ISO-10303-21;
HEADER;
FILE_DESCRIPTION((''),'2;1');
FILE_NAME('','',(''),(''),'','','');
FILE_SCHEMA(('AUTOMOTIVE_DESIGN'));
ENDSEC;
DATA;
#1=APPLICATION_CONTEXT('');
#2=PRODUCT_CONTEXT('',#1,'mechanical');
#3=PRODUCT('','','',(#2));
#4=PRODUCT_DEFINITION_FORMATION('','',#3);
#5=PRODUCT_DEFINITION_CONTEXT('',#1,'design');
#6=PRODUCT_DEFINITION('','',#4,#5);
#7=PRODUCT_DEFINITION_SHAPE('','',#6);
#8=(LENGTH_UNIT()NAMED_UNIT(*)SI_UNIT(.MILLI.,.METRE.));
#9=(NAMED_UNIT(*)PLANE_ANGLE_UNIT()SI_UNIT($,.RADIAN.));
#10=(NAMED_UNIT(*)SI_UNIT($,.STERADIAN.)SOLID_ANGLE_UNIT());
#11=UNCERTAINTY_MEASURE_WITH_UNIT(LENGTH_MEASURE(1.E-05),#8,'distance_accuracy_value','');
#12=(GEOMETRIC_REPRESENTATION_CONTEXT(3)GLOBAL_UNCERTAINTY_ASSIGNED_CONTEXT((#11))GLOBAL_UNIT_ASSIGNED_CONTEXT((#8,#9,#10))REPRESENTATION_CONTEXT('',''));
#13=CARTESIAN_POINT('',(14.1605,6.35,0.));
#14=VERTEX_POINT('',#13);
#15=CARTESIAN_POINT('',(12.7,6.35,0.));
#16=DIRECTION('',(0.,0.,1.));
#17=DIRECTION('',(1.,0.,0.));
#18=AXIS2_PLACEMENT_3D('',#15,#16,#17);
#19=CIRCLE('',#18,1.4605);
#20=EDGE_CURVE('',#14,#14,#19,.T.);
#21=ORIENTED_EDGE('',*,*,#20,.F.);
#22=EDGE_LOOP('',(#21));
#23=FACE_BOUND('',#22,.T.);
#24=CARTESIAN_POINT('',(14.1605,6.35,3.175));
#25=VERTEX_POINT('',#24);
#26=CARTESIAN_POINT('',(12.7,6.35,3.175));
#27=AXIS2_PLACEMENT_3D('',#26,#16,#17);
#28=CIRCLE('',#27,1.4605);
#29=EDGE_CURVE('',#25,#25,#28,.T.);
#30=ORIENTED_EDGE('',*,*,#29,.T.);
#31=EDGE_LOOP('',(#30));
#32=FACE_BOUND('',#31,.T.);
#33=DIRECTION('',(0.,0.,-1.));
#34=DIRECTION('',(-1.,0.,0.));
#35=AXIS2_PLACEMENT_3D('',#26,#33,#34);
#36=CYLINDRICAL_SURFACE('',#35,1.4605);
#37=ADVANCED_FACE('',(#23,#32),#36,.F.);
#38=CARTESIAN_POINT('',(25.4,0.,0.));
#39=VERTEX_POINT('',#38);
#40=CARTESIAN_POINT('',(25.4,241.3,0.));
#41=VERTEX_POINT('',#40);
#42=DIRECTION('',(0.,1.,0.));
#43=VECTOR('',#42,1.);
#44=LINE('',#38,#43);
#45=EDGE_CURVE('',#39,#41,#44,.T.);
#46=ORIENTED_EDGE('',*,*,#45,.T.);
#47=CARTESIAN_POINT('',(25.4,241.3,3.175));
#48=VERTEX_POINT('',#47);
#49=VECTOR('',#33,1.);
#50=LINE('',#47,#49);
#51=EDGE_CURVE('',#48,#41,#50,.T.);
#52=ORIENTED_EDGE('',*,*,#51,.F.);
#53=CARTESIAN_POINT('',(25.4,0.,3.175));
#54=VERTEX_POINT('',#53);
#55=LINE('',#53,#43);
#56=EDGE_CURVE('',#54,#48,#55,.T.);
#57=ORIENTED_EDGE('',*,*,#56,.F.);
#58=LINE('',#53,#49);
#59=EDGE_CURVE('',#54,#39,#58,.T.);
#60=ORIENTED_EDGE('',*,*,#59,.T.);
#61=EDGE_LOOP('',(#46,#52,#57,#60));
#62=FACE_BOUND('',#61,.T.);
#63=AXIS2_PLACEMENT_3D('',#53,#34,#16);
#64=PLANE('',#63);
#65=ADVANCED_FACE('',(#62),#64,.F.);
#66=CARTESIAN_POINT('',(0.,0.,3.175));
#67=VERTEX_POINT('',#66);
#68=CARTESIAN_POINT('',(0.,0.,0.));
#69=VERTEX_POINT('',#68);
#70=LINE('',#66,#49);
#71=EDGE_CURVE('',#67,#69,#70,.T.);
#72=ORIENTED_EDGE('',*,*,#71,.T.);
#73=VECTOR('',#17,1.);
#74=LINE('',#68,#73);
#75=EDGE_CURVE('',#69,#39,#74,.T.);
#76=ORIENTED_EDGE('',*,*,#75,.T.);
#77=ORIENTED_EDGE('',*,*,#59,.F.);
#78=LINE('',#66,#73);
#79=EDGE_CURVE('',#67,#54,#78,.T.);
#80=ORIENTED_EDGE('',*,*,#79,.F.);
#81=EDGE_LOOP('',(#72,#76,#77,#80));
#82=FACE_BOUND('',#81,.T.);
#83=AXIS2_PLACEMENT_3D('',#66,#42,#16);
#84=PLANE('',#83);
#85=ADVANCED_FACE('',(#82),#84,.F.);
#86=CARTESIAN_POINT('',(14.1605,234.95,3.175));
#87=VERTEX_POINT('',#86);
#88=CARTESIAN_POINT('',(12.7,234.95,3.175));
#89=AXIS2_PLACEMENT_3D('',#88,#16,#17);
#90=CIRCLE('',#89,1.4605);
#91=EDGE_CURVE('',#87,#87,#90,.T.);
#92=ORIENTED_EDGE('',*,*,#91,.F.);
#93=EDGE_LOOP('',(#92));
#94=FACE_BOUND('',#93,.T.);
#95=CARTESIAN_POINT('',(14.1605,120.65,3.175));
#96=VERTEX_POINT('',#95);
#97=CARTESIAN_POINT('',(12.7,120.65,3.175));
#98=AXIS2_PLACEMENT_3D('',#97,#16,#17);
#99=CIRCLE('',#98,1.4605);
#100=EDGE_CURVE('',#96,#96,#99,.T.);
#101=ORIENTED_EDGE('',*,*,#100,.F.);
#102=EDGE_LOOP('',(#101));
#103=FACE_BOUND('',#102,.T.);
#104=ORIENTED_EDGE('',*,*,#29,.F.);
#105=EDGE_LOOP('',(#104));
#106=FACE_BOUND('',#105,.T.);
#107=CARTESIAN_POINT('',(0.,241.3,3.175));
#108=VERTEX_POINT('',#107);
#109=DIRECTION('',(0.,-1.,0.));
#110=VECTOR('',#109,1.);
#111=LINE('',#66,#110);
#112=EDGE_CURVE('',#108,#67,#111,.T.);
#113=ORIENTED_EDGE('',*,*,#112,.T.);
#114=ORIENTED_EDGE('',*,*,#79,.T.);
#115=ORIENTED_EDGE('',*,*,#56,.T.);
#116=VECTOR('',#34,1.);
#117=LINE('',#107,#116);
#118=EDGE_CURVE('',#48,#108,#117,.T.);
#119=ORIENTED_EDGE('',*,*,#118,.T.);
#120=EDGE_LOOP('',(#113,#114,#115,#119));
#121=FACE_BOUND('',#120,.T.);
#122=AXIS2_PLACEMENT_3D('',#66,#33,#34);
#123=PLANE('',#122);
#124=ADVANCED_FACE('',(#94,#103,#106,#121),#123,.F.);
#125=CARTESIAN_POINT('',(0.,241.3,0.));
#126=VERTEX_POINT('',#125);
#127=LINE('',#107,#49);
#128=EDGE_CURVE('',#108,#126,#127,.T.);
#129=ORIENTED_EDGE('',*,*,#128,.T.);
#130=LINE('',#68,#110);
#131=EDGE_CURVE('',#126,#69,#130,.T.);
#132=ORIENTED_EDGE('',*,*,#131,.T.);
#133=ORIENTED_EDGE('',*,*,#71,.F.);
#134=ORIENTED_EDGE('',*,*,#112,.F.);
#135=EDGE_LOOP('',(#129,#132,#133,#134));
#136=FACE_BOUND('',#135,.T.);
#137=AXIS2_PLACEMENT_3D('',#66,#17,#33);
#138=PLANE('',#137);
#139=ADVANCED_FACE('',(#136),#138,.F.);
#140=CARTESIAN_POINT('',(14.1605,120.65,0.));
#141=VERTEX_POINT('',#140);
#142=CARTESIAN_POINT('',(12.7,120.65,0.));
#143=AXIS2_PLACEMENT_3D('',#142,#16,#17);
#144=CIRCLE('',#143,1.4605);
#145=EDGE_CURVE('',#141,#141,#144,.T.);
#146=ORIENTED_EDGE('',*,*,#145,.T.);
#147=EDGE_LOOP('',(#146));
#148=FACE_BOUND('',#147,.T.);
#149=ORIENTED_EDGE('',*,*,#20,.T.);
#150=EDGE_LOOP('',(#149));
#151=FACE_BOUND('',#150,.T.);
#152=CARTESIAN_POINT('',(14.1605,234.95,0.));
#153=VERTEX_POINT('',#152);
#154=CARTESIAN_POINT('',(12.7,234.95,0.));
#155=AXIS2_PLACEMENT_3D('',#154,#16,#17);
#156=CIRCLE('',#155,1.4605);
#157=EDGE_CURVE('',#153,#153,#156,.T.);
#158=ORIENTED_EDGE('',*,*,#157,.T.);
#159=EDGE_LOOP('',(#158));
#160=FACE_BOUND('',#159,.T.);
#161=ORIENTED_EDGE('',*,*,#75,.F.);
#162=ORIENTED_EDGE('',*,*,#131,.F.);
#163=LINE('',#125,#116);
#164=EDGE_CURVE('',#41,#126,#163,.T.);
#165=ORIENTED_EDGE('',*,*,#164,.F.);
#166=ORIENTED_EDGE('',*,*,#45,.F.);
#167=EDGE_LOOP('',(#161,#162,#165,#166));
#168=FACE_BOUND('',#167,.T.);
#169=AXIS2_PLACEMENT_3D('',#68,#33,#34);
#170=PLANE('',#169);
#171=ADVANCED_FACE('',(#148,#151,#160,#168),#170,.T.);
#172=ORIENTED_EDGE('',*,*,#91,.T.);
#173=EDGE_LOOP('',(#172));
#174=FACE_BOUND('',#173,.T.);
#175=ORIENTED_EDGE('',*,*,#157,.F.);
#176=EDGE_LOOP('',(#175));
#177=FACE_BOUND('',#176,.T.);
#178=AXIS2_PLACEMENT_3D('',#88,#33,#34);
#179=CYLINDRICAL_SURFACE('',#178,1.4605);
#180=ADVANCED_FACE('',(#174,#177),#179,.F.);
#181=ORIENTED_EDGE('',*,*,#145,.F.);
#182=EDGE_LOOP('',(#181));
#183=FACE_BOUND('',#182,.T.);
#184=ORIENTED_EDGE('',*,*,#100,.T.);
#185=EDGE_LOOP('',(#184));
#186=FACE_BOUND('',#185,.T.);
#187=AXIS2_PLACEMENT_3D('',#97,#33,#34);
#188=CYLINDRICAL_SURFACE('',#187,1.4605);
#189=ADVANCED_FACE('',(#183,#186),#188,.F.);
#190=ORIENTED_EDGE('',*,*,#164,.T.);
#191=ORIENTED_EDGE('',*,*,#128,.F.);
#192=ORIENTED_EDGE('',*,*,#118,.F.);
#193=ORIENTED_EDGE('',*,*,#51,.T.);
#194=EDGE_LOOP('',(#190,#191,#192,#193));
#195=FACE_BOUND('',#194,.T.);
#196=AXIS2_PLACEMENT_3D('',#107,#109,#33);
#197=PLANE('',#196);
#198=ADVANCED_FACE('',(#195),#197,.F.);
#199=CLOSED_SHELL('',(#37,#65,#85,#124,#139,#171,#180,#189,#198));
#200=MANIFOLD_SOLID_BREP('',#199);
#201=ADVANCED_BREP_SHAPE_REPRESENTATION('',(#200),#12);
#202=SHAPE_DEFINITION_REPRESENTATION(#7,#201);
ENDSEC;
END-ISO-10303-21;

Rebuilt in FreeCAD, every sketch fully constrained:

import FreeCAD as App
import Part
import Sketcher

V = App.Vector
Q = App.Units.Quantity


def add_polygon(sketch, points):
    """Adds a closed chain of lines whose ends are joined by coincident constraints."""
    first, n = sketch.GeometryCount, len(points)
    for a, b in zip(points, points[1:] + points[:1]):
        sketch.addGeometry(Part.LineSegment(App.Vector(*a, 0), App.Vector(*b, 0)), False)
    for i in range(n):
        sketch.addConstraint(Sketcher.Constraint("Coincident", first + i, 2, first + (i + 1) % n, 1))

doc = App.newDocument("Part")
params = doc.addObject("Spreadsheet::Sheet", "Params")
for row, (alias, value) in enumerate([
    ("sketch1_width", "1 in"),
    ("sketch1_diameter", "0.115 in"),
    ("sketch1_height", "9.5 in"),
    ("pad1_length", "0.125 in"),
], start=1):
    params.set(f"A{row}", alias)
    params.set(f"B{row}", "=" + value)
    params.setAlias(f"B{row}", alias)

body = doc.addObject("PartDesign::Body", "Body")

# Sketch on XY plane
sketch1 = body.newObject("Sketcher::SketchObject", "Sketch")
sketch1.AttachmentSupport = (doc.getObject("XY_Plane"), [""])
sketch1.MapMode = "FlatFace"
add_polygon(sketch1, [(0, 241.3), (0, 0), (25.4, 0), (25.4, 241.3)])  # lines 0-3
sketch1.addGeometry(Part.Circle(V(12.7, 6.35, 0), V(0, 0, 1), 1.4605), False)  # 4
sketch1.addGeometry(Part.Circle(V(12.7, 120.65, 0), V(0, 0, 1), 1.4605), False)  # 5
sketch1.addGeometry(Part.Circle(V(12.7, 234.95, 0), V(0, 0, 1), 1.4605), False)  # 6
sketch1.addConstraint([
    Sketcher.Constraint("Vertical", 0),
    Sketcher.Constraint("Horizontal", 1),
    Sketcher.Constraint("Vertical", 2),
    Sketcher.Constraint("Horizontal", 3),
    Sketcher.Constraint("Coincident", 0, 2, -1, 1),
    Sketcher.Constraint("Equal", 4, 5),
    Sketcher.Constraint("Equal", 5, 6),
    Sketcher.Constraint("Vertical", 4, 3, 5, 3),
    Sketcher.Constraint("Vertical", 5, 3, 6, 3),
    Sketcher.Constraint("DistanceX", 1, 1, 1, 2, Q("1 in")),
    Sketcher.Constraint("Diameter", 4, Q("0.115 in")),
    Sketcher.Constraint("DistanceY", 0, 2, 0, 1, Q("9.5 in")),
    Sketcher.Constraint("DistanceY", 4, 3, 6, 3, Q("9 in")),
    Sketcher.Constraint("DistanceX", -1, 1, 4, 3, Q("0.5 in")),
    Sketcher.Constraint("DistanceY", 4, 3, 5, 3, Q("4.5 in")),
    Sketcher.Constraint("DistanceY", -1, 1, 4, 3, Q("0.25 in")),
])
sketch1.setExpression("Constraints[13]", "Params.sketch1_width")
sketch1.setExpression("Constraints[14]", "Params.sketch1_diameter")
sketch1.setExpression("Constraints[15]", "Params.sketch1_height")
pad1 = body.newObject("PartDesign::Pad", "Pad")
pad1.Profile = sketch1
pad1.setExpression("Length", "Params.pad1_length")

doc.recompute()
